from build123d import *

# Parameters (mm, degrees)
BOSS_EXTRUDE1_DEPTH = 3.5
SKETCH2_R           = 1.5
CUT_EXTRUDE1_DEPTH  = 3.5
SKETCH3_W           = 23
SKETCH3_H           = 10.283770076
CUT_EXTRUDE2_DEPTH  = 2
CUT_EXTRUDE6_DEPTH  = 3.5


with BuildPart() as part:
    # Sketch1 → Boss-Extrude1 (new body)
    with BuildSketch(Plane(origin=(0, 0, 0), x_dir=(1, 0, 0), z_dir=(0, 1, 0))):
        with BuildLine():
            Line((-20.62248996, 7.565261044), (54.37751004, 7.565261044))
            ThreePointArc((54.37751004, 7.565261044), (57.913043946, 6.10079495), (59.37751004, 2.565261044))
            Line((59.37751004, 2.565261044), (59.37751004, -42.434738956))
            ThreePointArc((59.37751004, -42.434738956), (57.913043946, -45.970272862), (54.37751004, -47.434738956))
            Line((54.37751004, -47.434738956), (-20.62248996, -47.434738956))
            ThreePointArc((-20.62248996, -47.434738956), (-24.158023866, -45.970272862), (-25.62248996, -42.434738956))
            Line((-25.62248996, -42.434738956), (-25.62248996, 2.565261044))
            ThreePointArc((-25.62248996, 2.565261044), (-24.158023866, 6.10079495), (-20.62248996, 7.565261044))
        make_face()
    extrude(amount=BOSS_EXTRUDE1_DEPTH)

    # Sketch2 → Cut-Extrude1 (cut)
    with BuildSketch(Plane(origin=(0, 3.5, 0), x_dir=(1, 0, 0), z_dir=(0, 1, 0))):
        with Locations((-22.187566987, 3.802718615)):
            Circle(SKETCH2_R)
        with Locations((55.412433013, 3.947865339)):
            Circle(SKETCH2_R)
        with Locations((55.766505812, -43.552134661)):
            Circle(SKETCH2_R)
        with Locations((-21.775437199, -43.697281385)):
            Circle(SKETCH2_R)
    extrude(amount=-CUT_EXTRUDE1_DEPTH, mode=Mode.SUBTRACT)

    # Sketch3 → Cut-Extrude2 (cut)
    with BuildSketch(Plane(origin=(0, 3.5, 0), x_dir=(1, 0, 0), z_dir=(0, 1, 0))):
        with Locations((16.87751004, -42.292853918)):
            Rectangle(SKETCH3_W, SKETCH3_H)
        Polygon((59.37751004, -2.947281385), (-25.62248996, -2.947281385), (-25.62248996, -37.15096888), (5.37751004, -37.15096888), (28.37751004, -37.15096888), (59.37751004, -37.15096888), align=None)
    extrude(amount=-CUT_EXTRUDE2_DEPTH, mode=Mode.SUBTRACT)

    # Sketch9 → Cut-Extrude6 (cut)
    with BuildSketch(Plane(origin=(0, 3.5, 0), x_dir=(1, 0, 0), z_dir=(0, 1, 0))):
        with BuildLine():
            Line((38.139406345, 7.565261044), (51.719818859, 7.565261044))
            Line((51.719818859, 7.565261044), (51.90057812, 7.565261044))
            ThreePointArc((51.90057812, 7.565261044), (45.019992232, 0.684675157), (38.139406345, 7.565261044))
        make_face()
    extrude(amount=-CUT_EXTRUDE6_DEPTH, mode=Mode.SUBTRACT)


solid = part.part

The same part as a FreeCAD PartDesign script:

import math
import FreeCAD as App
import Part
import Sketcher

V = App.Vector
Q = App.Units.Quantity

doc = App.newDocument("Part")
params = doc.addObject("Spreadsheet::Sheet", "Params")
for row, (alias, value) in enumerate([
    ("sketch1_radius", "5 mm"),
    ("sketch1_width", "75 mm"),
    ("sketch1_height", "45 mm"),
    ("pad1_length", "3.5 mm"),
    ("sketch2_diameter", "3 mm"),
    ("pocket1_length", "3.5 mm"),
    ("sketch3_width", "23 mm"),
    ("sketch3_width2", "31 mm"),
    ("pocket2_length", "2 mm"),
    ("pocket3_length", "3.5 mm"),
], start=1):
    params.set(f"A{row}", alias)
    params.set(f"B{row}", "=" + value)
    params.setAlias(f"B{row}", alias)

body = doc.addObject("PartDesign::Body", "Body")

# Sketch on XZ plane
sketch1 = body.newObject("Sketcher::SketchObject", "Sketch")
sketch1.AttachmentSupport = (doc.getObject("XZ_Plane"), [""])
sketch1.MapMode = "FlatFace"
sketch1.addGeometry([
    Part.LineSegment(V(54, -8, 0), V(-21, -8, 0)),  # 0
    Part.ArcOfCircle(Part.Circle(V(-21, -3, 0), V(0, 0, 1), 5), math.radians(180), math.radians(270)),  # 1
    Part.LineSegment(V(-26, -3, 0), V(-26, 42, 0)),  # 2
    Part.ArcOfCircle(Part.Circle(V(-21, 42, 0), V(0, 0, 1), 5), math.radians(90), math.radians(180)),  # 3
    Part.LineSegment(V(-21, 47, 0), V(54, 47, 0)),  # 4
    Part.ArcOfCircle(Part.Circle(V(54, 42, 0), V(0, 0, 1), 5), math.radians(0), math.radians(90)),  # 5
    Part.LineSegment(V(59, 42, 0), V(59, -3, 0)),  # 6
    Part.ArcOfCircle(Part.Circle(V(54, -3, 0), V(0, 0, 1), 5), math.radians(-90), math.radians(0)),  # 7
], False)
sketch1.addConstraint([
    Sketcher.Constraint("Tangent", 0, 2, 1, 2),
    Sketcher.Constraint("Tangent", 1, 1, 2, 1),
    Sketcher.Constraint("Tangent", 2, 2, 3, 2),
    Sketcher.Constraint("Tangent", 3, 1, 4, 1),
    Sketcher.Constraint("Tangent", 4, 2, 5, 2),
    Sketcher.Constraint("Tangent", 5, 1, 6, 1),
    Sketcher.Constraint("Tangent", 6, 2, 7, 2),
    Sketcher.Constraint("Tangent", 7, 1, 0, 1),
    Sketcher.Constraint("Horizontal", 0),
    Sketcher.Constraint("Vertical", 2),
    Sketcher.Constraint("Horizontal", 4),
    Sketcher.Constraint("Vertical", 6),
    Sketcher.Constraint("Equal", 1, 3),
    Sketcher.Constraint("Equal", 3, 5),
    Sketcher.Constraint("Equal", 5, 7),
    Sketcher.Constraint("Radius", 1, Q("5 mm")),
    Sketcher.Constraint("DistanceX", 0, 2, 0, 1, Q("75 mm")),
    Sketcher.Constraint("DistanceY", 2, 1, 2, 2, Q("45 mm")),
    Sketcher.Constraint("DistanceX", 1, 3, -1, 1, Q("20.62249 mm")),
    Sketcher.Constraint("DistanceY", 1, 3, -1, 1, Q("2.565261 mm")),
])
sketch1.setExpression("Constraints[15]", "Params.sketch1_radius")
sketch1.setExpression("Constraints[16]", "Params.sketch1_width")
sketch1.setExpression("Constraints[17]", "Params.sketch1_height")
pad1 = body.newObject("PartDesign::Pad", "Pad")
pad1.Profile = sketch1
pad1.setExpression("Length", "Params.pad1_length")
pad1.Reversed = True

# Sketch on XZ plane
sketch2 = body.newObject("Sketcher::SketchObject", "Sketch001")
sketch2.AttachmentSupport = (doc.getObject("XZ_Plane"), [""])
sketch2.MapMode = "FlatFace"
sketch2.AttachmentOffset = App.Placement(V(0, 0, -3.5), App.Rotation())
sketch2.addGeometry([
    Part.Circle(V(-22.2, -3.8, 0), V(0, 0, 1), 1.5),
    Part.Circle(V(55.4, -3.9, 0), V(0, 0, 1), 1.5),
    Part.Circle(V(55.8, 43.6, 0), V(0, 0, 1), 1.5),
    Part.Circle(V(-21.8, 43.7, 0), V(0, 0, 1), 1.5),
], False)
sketch2.addConstraint([
    Sketcher.Constraint("Equal", 0, 1),
    Sketcher.Constraint("Equal", 1, 2),
    Sketcher.Constraint("Equal", 2, 3),
    Sketcher.Constraint("Diameter", 0, Q("3 mm")),
    Sketcher.Constraint("DistanceX", 0, 3, 1, 3, Q("77.6 mm")),
    Sketcher.Constraint("DistanceY", 1, 3, 2, 3, Q("47.5 mm")),
    Sketcher.Constraint("DistanceY", 0, 3, 3, 3, Q("47.5 mm")),
    Sketcher.Constraint("DistanceY", 0, 3, -1, 1, Q("3.802719 mm")),
    Sketcher.Constraint("DistanceX", 0, 3, 3, 3, Q("0.41213 mm")),
    Sketcher.Constraint("DistanceX", 0, 3, -1, 1, Q("22.187567 mm")),
    Sketcher.Constraint("DistanceY", 1, 3, -1, 1, Q("3.947865 mm")),
    Sketcher.Constraint("DistanceX", -1, 1, 2, 3, Q("55.766506 mm")),
])
sketch2.setExpression("Constraints[3]", "Params.sketch2_diameter")
pocket1 = body.newObject("PartDesign::Pocket", "Pocket")
pocket1.Profile = sketch2
pocket1.setExpression("Length", "Params.pocket1_length")
pocket1.Reversed = True

# Sketch on XZ plane
sketch3 = body.newObject("Sketcher::SketchObject", "Sketch002")
sketch3.AttachmentSupport = (doc.getObject("XZ_Plane"), [""])
sketch3.MapMode = "FlatFace"
sketch3.AttachmentOffset = App.Placement(V(0, 0, -3.5), App.Rotation())
sketch3.addGeometry([
    Part.LineSegment(V(5, 37, 0), V(5, 47, 0)),  # 0
    Part.LineSegment(V(5, 47, 0), V(28, 47, 0)),  # 1
    Part.LineSegment(V(28, 47, 0), V(28, 37, 0)),  # 2
    Part.LineSegment(V(28, 37, 0), V(59, 37, 0)),  # 3
    Part.LineSegment(V(59, 37, 0), V(59, 3, 0)),  # 4
    Part.LineSegment(V(59, 3, 0), V(-26, 3, 0)),  # 5
    Part.LineSegment(V(-26, 3, 0), V(-26, 37, 0)),  # 6
    Part.LineSegment(V(-26, 37, 0), V(5, 37, 0)),  # 7
], False)
sketch3.addConstraint([
    Sketcher.Constraint("Coincident", 0, 2, 1, 1),
    Sketcher.Constraint("Coincident", 1, 2, 2, 1),
    Sketcher.Constraint("Coincident", 2, 2, 3, 1),
    Sketcher.Constraint("Coincident", 3, 2, 4, 1),
    Sketcher.Constraint("Coincident", 4, 2, 5, 1),
    Sketcher.Constraint("Coincident", 5, 2, 6, 1),
    Sketcher.Constraint("Coincident", 6, 2, 7, 1),
    Sketcher.Constraint("Coincident", 7, 2, 0, 1),
    Sketcher.Constraint("Vertical", 0),
    Sketcher.Constraint("Horizontal", 1),
    Sketcher.Constraint("Vertical", 2),
    Sketcher.Constraint("Horizontal", 3),
    Sketcher.Constraint("Vertical", 4),
    Sketcher.Constraint("Horizontal", 5),
    Sketcher.Constraint("Vertical", 6),
    Sketcher.Constraint("Horizontal", 7),
    Sketcher.Constraint("Horizontal", 3, 2, 6, 2),
    Sketcher.Constraint("Equal", 3, 7),
    Sketcher.Constraint("DistanceX", 1, 1, 1, 2, Q("23 mm")),
    Sketcher.Constraint("DistanceX", 3, 1, 3, 2, Q("31 mm")),
    Sketcher.Constraint("DistanceY", 0, 1, 0, 2, Q("10.28377 mm")),
    Sketcher.Constraint("DistanceY", 4, 2, 4, 1, Q("34.203687 mm")),
    Sketcher.Constraint("DistanceX", -1, 1, 0, 2, Q("5.37751 mm")),
    Sketcher.Constraint("DistanceY", -1, 1, 0, 2, Q("47.434739 mm")),
])
sketch3.setExpression("Constraints[18]", "Params.sketch3_width")
sketch3.setExpression("Constraints[19]", "Params.sketch3_width2")
pocket2 = body.newObject("PartDesign::Pocket", "Pocket001")
pocket2.Profile = sketch3
pocket2.setExpression("Length", "Params.pocket2_length")
pocket2.Reversed = True

# Sketch on XZ plane
sketch4 = body.newObject("Sketcher::SketchObject", "Sketch003")
sketch4.AttachmentSupport = (doc.getObject("XZ_Plane"), [""])
sketch4.MapMode = "FlatFace"
sketch4.AttachmentOffset = App.Placement(V(0, 0, -3.5), App.Rotation())
sketch4.addGeometry([
    Part.LineSegment(V(52, -8, 0), V(38, -8, 0)),
    Part.ArcOfCircle(Part.Circle(V(45, -8, 0), V(0, 0, 1), 7), math.radians(0), math.radians(180)),
], False)
sketch4.addConstraint([
    Sketcher.Constraint("Coincident", 0, 1, 1, 1),
    Sketcher.Constraint("Coincident", 1, 2, 0, 2),
    Sketcher.Constraint("Horizontal", 0),
    Sketcher.Constraint("Horizontal", 1, 3, 0, 1),
    Sketcher.Constraint("Radius", 1, Q("6.880586 mm")),
    Sketcher.Constraint("DistanceY", 1, 3, -1, 1, Q("7.565261 mm")),
    Sketcher.Constraint("DistanceX", -1, 1, 0, 1, Q("51.900578 mm")),
])
pocket3 = body.newObject("PartDesign::Pocket", "Pocket002")
pocket3.Profile = sketch4
pocket3.setExpression("Length", "Params.pocket3_length")
pocket3.Reversed = True

doc.recompute()
